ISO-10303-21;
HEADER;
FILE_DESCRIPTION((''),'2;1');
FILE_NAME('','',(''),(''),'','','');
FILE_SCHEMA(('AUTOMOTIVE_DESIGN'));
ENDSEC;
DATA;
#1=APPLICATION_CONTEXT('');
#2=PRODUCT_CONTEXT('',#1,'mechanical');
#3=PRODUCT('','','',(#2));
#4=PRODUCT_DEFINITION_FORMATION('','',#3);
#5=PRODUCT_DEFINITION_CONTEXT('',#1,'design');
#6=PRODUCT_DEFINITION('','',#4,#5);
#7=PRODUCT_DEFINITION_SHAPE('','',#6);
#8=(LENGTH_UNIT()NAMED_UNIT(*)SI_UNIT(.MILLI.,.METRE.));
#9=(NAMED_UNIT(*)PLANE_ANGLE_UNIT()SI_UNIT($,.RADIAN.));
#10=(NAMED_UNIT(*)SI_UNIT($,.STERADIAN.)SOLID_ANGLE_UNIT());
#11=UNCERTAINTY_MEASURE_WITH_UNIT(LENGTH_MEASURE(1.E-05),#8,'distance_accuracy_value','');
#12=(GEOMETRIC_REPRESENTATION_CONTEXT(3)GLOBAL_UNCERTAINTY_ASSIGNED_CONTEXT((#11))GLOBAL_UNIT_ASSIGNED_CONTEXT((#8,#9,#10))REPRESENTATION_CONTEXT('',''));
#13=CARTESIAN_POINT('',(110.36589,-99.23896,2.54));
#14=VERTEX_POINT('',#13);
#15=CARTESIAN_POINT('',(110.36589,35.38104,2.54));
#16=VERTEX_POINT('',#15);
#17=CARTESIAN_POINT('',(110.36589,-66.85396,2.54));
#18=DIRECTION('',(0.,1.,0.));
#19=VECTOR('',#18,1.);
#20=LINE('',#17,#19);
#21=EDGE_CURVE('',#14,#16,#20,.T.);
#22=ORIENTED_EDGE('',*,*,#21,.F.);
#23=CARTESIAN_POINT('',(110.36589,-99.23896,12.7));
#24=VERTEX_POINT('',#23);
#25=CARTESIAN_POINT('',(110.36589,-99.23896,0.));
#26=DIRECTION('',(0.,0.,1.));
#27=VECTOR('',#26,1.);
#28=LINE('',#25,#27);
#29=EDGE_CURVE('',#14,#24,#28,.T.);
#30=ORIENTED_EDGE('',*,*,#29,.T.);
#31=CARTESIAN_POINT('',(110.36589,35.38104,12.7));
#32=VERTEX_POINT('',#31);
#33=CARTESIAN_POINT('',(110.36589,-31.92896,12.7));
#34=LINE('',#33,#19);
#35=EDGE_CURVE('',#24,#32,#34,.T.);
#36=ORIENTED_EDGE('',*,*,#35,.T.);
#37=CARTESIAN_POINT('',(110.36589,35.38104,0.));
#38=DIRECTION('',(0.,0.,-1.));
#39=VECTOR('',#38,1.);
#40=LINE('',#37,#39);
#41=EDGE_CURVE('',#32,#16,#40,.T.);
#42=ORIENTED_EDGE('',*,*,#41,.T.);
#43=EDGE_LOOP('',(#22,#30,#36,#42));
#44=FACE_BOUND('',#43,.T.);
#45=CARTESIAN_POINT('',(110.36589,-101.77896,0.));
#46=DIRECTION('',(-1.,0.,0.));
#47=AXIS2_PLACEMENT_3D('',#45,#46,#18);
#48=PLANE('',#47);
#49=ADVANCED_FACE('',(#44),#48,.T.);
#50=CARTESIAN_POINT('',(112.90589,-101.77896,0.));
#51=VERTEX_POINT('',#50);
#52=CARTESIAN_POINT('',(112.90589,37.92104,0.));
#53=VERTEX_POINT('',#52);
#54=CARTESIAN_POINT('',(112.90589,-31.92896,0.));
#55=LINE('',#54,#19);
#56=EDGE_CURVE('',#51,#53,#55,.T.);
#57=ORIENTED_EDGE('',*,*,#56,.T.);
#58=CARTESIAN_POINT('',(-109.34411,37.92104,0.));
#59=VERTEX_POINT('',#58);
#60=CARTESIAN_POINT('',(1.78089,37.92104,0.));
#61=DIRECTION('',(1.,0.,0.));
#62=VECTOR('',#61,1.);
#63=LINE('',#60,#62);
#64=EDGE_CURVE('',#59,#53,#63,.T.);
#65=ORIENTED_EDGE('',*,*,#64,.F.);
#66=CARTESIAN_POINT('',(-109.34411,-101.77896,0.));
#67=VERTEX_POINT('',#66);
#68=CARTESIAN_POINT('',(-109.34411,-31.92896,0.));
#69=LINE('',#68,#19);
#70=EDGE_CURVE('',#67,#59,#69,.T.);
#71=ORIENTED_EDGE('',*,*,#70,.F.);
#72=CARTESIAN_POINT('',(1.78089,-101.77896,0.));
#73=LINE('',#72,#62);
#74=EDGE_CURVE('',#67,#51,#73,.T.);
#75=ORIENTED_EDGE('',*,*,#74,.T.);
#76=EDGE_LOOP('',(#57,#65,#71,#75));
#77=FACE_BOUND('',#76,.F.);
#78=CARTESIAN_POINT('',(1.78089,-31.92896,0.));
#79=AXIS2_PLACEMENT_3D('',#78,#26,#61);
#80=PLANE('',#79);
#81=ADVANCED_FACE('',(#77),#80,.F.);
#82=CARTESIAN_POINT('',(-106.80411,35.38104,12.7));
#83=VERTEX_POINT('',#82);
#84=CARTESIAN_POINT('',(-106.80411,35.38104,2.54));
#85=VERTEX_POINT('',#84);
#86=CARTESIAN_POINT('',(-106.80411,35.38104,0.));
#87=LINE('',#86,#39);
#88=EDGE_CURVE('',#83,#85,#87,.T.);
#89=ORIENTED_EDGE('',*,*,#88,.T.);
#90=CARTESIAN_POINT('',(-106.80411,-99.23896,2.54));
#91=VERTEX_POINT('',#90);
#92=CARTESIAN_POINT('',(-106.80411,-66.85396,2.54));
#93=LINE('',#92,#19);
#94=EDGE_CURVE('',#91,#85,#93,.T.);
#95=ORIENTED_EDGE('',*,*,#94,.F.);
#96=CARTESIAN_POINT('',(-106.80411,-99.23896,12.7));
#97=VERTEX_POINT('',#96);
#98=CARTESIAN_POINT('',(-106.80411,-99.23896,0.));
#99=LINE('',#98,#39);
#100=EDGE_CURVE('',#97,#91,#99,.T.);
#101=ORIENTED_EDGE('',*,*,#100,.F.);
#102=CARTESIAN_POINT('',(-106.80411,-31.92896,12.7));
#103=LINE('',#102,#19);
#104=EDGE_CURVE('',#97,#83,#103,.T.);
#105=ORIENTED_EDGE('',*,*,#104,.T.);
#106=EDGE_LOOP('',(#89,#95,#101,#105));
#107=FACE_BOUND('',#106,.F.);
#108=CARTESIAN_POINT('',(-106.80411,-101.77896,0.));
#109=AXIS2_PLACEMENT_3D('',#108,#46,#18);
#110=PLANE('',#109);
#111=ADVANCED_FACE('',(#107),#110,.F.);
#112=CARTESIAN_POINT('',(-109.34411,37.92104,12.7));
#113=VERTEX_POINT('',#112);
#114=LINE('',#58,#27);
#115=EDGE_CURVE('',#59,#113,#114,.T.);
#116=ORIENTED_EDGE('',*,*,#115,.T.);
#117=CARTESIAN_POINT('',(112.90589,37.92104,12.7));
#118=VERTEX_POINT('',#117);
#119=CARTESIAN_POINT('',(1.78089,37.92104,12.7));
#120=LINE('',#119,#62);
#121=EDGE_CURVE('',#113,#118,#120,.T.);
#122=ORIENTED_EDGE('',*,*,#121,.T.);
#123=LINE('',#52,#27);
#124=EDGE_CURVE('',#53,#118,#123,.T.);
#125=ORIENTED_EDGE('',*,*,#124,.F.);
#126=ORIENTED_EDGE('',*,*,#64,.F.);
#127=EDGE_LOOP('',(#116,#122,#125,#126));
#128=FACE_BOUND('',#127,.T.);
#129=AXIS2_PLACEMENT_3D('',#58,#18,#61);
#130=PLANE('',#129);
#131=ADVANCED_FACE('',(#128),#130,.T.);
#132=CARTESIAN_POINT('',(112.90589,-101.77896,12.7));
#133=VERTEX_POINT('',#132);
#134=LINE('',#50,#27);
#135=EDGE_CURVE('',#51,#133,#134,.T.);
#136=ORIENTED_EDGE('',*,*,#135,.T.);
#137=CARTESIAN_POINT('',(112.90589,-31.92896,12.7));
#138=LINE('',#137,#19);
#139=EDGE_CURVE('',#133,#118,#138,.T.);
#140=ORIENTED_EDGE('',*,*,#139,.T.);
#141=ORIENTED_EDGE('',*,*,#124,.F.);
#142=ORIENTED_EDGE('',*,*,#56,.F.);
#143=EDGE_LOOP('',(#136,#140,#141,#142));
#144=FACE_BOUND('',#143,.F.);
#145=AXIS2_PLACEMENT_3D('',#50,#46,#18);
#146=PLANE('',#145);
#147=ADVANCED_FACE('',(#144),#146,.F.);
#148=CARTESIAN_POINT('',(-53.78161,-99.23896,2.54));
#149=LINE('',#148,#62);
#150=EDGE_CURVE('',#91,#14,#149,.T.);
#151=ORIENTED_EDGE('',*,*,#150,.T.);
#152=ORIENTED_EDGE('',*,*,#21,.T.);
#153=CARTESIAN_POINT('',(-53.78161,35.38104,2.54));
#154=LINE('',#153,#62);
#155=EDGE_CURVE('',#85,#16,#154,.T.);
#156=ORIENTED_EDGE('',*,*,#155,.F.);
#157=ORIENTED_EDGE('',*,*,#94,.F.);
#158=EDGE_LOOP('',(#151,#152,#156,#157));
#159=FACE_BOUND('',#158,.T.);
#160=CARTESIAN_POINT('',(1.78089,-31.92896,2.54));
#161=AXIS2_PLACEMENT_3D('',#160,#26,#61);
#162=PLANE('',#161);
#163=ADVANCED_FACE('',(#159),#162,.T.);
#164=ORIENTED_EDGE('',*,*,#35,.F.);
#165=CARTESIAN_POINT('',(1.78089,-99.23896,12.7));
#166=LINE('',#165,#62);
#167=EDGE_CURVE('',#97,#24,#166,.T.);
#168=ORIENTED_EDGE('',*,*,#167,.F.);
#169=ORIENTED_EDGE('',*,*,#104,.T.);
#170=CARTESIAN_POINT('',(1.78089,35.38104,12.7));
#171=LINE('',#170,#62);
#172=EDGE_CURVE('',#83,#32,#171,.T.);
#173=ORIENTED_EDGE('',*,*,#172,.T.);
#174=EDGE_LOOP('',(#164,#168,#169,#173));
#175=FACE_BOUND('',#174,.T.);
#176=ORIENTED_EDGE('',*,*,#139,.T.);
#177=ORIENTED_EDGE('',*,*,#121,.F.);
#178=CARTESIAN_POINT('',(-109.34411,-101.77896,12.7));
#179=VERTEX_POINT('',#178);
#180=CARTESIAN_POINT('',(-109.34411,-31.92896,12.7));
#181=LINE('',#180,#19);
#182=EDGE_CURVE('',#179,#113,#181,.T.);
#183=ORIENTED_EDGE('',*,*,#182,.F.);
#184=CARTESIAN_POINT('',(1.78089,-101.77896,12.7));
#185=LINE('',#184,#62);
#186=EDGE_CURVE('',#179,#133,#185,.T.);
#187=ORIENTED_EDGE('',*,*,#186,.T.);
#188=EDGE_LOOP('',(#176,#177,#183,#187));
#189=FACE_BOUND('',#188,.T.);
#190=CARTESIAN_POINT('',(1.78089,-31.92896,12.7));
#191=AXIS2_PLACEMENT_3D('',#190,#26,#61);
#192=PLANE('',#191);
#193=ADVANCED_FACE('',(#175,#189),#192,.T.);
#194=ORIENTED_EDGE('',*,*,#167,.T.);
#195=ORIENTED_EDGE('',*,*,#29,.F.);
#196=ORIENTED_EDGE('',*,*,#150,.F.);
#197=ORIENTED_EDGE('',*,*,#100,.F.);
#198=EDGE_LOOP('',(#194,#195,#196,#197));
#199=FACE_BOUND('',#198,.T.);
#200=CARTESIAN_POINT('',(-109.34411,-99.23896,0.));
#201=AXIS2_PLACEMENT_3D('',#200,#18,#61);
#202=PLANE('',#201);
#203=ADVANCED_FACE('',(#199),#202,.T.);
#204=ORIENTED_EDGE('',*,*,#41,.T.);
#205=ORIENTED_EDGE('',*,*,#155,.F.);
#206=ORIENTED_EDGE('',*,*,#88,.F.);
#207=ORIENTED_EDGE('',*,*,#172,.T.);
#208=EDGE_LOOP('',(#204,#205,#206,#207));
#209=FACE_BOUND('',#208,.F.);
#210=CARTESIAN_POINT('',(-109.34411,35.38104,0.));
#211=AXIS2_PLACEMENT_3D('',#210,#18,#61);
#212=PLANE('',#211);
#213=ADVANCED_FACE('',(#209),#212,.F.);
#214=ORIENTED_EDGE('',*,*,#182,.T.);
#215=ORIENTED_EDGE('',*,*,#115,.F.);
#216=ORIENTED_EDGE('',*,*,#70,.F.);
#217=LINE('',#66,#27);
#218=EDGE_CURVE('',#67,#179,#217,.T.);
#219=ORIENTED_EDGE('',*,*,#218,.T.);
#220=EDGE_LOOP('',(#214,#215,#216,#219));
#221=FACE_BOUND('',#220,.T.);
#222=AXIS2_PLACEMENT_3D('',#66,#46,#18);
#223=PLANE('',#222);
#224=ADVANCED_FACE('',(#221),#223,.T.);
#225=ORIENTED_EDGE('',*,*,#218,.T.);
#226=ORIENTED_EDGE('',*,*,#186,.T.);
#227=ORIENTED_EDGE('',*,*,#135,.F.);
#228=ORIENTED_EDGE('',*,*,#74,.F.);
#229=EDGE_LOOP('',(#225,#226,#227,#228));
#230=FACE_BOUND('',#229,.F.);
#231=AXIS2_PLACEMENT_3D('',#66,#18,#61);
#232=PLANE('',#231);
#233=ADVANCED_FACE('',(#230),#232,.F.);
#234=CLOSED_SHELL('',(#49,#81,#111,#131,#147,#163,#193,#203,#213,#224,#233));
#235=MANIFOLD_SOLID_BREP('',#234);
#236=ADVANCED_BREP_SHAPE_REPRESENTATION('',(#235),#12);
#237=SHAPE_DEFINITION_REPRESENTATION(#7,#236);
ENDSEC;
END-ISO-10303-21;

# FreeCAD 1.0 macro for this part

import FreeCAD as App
import Part
import Sketcher

V = App.Vector
Q = App.Units.Quantity


def faces_at(feature, points):
    """Names of the faces that lie closest to the given points."""
    faces = feature.Shape.Faces
    near = lambda p: min(range(len(faces)), key=lambda i: faces[i].distToShape(Part.Vertex(*p))[0])
    return sorted({f"Face{near(p) + 1}" for p in points})


def add_polygon(sketch, points):
    """Adds a closed chain of lines whose ends are joined by coincident constraints."""
    first, n = sketch.GeometryCount, len(points)
    for a, b in zip(points, points[1:] + points[:1]):
        sketch.addGeometry(Part.LineSegment(App.Vector(*a, 0), App.Vector(*b, 0)), False)
    for i in range(n):
        sketch.addConstraint(Sketcher.Constraint("Coincident", first + i, 2, first + (i + 1) % n, 1))

doc = App.newDocument("Part")
body = doc.addObject("PartDesign::Body", "Body")

# Sketch on XY plane
sketch1 = body.newObject("Sketcher::SketchObject", "Sketch")
sketch1.AttachmentSupport = (doc.getObject("XY_Plane"), [""])
sketch1.MapMode = "FlatFace"
add_polygon(sketch1, [(-109, 38), (-109, -102), (113, -102), (113, 38)])  # lines 0-3
sketch1.addConstraint(Sketcher.Constraint("Vertical", 0))
sketch1.addConstraint(Sketcher.Constraint("Horizontal", 1))
sketch1.addConstraint(Sketcher.Constraint("Vertical", 2))
sketch1.addConstraint(Sketcher.Constraint("Horizontal", 3))
sketch1.addConstraint(Sketcher.Constraint("DistanceY", 0, 2, 0, 1, Q("5.5 in")))
sketch1.addConstraint(Sketcher.Constraint("DistanceX", 1, 1, 1, 2, Q("8.75 in")))
sketch1.addConstraint(Sketcher.Constraint("DistanceX", 0, 2, -1, 1, 109.34411))
sketch1.addConstraint(Sketcher.Constraint("DistanceY", 0, 2, -1, 1, 101.77896))
pad1 = body.newObject("PartDesign::Pad", "Pad")
pad1.Profile = sketch1
pad1.Length = Q("0.5 in")

# Sketch on XY plane
sketch2 = body.newObject("Sketcher::SketchObject", "Sketch001")
sketch2.AttachmentSupport = (doc.getObject("XY_Plane"), [""])
sketch2.MapMode = "FlatFace"
add_polygon(sketch2, [(-109, 38), (-109, -102), (113, -102), (113, 38)])  # lines 0-3
sketch2.addConstraint(Sketcher.Constraint("Vertical", 0))
sketch2.addConstraint(Sketcher.Constraint("Horizontal", 1))
sketch2.addConstraint(Sketcher.Constraint("Vertical", 2))
sketch2.addConstraint(Sketcher.Constraint("Horizontal", 3))
sketch2.addConstraint(Sketcher.Constraint("DistanceY", 0, 2, 0, 1, Q("5.5 in")))
sketch2.addConstraint(Sketcher.Constraint("DistanceX", 1, 1, 1, 2, Q("8.75 in")))
sketch2.addConstraint(Sketcher.Constraint("DistanceX", 0, 2, -1, 1, 109.34411))
sketch2.addConstraint(Sketcher.Constraint("DistanceY", 0, 2, -1, 1, 101.77896))
pad2 = body.newObject("PartDesign::Pad", "Pad001")
pad2.Profile = sketch2
pad2.Length = Q("0.5 in")
doc.recompute()

thickness = body.newObject("PartDesign::Thickness", "Thickness")
thickness.Base = (pad2, faces_at(pad2, [(1.781, -31.929, 12.7)]))
thickness.Value = Q("0.1 in")
thickness.Reversed = True
thickness.Join = "Arc"

doc.recompute()
